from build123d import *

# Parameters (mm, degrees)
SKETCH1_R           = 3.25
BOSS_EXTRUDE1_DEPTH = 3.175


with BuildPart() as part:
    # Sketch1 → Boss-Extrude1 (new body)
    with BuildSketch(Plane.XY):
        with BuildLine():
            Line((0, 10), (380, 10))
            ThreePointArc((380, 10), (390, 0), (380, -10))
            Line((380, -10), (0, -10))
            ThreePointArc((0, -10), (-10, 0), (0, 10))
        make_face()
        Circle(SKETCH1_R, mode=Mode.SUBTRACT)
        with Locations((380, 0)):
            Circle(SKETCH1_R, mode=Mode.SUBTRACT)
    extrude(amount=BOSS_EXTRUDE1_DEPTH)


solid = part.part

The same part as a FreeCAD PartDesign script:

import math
import FreeCAD as App
import Part
import Sketcher
from FreeCAD import Vector
Q = App.Units.Quantity

doc = App.newDocument("Part")
params = doc.addObject("Spreadsheet::Sheet", "Params")
for row, (alias, value) in enumerate([
    ("sketch1_radius", "10 mm"),
    ("sketch1_diameter", "6.5 mm"),
    ("sketch1_width", "380 mm"),
    ("pad1_length", "3.175 mm"),
], start=1):
    params.set(f"A{row}", alias)
    params.set(f"B{row}", "=" + value)
    params.setAlias(f"B{row}", alias)

body = doc.addObject("PartDesign::Body", "Body")

# Sketch on XY plane
sketch1 = body.newObject("Sketcher::SketchObject", "Sketch")
sketch1.AttachmentSupport = (doc.getObject("XY_Plane"), [""])
sketch1.MapMode = "FlatFace"
sketch1.addGeometry([
    Part.LineSegment(Vector(380, 10, 0), Vector(0, 10, 0)),  # 0
    Part.ArcOfCircle(Part.Circle(Vector(0, 0, 0), Vector(0, 0, 1), 10), math.radians(90), math.radians(270)),  # 1
    Part.LineSegment(Vector(0, -10, 0), Vector(380, -10, 0)),  # 2
    Part.ArcOfCircle(Part.Circle(Vector(380, 0, 0), Vector(0, 0, 1), 10), math.radians(-90), math.radians(90)),  # 3
    Part.Circle(Vector(380, 0, 0), Vector(0, 0, 1), 3.2),  # 4
    Part.Circle(Vector(0, 0, 0), Vector(0, 0, 1), 3.2),  # 5
], False)
sketch1.addConstraint([
    Sketcher.Constraint("Tangent", 0, 2, 1, 1),
    Sketcher.Constraint("Tangent", 1, 2, 2, 1),
    Sketcher.Constraint("Tangent", 2, 2, 3, 1),
    Sketcher.Constraint("Tangent", 3, 2, 0, 1),
    Sketcher.Constraint("Horizontal", 0),
    Sketcher.Constraint("Horizontal", 2),
    Sketcher.Constraint("Coincident", 1, 3, -1, 1),
    Sketcher.Constraint("Coincident", 5, 3, -1, 1),
    Sketcher.Constraint("Coincident", 4, 3, 3, 3),
    Sketcher.Constraint("Equal", 4, 5),
    Sketcher.Constraint("Radius", 1, Q("10 mm")),
    Sketcher.Constraint("Diameter", 4, Q("6.5 mm")),
    Sketcher.Constraint("DistanceX", 0, 2, 0, 1, Q("380 mm")),
])
sketch1.setExpression("Constraints[10]", "Params.sketch1_radius")
sketch1.setExpression("Constraints[11]", "Params.sketch1_diameter")
sketch1.setExpression("Constraints[12]", "Params.sketch1_width")
pad1 = body.newObject("PartDesign::Pad", "Pad")
pad1.Profile = sketch1
pad1.setExpression("Length", "Params.pad1_length")

doc.recompute()
